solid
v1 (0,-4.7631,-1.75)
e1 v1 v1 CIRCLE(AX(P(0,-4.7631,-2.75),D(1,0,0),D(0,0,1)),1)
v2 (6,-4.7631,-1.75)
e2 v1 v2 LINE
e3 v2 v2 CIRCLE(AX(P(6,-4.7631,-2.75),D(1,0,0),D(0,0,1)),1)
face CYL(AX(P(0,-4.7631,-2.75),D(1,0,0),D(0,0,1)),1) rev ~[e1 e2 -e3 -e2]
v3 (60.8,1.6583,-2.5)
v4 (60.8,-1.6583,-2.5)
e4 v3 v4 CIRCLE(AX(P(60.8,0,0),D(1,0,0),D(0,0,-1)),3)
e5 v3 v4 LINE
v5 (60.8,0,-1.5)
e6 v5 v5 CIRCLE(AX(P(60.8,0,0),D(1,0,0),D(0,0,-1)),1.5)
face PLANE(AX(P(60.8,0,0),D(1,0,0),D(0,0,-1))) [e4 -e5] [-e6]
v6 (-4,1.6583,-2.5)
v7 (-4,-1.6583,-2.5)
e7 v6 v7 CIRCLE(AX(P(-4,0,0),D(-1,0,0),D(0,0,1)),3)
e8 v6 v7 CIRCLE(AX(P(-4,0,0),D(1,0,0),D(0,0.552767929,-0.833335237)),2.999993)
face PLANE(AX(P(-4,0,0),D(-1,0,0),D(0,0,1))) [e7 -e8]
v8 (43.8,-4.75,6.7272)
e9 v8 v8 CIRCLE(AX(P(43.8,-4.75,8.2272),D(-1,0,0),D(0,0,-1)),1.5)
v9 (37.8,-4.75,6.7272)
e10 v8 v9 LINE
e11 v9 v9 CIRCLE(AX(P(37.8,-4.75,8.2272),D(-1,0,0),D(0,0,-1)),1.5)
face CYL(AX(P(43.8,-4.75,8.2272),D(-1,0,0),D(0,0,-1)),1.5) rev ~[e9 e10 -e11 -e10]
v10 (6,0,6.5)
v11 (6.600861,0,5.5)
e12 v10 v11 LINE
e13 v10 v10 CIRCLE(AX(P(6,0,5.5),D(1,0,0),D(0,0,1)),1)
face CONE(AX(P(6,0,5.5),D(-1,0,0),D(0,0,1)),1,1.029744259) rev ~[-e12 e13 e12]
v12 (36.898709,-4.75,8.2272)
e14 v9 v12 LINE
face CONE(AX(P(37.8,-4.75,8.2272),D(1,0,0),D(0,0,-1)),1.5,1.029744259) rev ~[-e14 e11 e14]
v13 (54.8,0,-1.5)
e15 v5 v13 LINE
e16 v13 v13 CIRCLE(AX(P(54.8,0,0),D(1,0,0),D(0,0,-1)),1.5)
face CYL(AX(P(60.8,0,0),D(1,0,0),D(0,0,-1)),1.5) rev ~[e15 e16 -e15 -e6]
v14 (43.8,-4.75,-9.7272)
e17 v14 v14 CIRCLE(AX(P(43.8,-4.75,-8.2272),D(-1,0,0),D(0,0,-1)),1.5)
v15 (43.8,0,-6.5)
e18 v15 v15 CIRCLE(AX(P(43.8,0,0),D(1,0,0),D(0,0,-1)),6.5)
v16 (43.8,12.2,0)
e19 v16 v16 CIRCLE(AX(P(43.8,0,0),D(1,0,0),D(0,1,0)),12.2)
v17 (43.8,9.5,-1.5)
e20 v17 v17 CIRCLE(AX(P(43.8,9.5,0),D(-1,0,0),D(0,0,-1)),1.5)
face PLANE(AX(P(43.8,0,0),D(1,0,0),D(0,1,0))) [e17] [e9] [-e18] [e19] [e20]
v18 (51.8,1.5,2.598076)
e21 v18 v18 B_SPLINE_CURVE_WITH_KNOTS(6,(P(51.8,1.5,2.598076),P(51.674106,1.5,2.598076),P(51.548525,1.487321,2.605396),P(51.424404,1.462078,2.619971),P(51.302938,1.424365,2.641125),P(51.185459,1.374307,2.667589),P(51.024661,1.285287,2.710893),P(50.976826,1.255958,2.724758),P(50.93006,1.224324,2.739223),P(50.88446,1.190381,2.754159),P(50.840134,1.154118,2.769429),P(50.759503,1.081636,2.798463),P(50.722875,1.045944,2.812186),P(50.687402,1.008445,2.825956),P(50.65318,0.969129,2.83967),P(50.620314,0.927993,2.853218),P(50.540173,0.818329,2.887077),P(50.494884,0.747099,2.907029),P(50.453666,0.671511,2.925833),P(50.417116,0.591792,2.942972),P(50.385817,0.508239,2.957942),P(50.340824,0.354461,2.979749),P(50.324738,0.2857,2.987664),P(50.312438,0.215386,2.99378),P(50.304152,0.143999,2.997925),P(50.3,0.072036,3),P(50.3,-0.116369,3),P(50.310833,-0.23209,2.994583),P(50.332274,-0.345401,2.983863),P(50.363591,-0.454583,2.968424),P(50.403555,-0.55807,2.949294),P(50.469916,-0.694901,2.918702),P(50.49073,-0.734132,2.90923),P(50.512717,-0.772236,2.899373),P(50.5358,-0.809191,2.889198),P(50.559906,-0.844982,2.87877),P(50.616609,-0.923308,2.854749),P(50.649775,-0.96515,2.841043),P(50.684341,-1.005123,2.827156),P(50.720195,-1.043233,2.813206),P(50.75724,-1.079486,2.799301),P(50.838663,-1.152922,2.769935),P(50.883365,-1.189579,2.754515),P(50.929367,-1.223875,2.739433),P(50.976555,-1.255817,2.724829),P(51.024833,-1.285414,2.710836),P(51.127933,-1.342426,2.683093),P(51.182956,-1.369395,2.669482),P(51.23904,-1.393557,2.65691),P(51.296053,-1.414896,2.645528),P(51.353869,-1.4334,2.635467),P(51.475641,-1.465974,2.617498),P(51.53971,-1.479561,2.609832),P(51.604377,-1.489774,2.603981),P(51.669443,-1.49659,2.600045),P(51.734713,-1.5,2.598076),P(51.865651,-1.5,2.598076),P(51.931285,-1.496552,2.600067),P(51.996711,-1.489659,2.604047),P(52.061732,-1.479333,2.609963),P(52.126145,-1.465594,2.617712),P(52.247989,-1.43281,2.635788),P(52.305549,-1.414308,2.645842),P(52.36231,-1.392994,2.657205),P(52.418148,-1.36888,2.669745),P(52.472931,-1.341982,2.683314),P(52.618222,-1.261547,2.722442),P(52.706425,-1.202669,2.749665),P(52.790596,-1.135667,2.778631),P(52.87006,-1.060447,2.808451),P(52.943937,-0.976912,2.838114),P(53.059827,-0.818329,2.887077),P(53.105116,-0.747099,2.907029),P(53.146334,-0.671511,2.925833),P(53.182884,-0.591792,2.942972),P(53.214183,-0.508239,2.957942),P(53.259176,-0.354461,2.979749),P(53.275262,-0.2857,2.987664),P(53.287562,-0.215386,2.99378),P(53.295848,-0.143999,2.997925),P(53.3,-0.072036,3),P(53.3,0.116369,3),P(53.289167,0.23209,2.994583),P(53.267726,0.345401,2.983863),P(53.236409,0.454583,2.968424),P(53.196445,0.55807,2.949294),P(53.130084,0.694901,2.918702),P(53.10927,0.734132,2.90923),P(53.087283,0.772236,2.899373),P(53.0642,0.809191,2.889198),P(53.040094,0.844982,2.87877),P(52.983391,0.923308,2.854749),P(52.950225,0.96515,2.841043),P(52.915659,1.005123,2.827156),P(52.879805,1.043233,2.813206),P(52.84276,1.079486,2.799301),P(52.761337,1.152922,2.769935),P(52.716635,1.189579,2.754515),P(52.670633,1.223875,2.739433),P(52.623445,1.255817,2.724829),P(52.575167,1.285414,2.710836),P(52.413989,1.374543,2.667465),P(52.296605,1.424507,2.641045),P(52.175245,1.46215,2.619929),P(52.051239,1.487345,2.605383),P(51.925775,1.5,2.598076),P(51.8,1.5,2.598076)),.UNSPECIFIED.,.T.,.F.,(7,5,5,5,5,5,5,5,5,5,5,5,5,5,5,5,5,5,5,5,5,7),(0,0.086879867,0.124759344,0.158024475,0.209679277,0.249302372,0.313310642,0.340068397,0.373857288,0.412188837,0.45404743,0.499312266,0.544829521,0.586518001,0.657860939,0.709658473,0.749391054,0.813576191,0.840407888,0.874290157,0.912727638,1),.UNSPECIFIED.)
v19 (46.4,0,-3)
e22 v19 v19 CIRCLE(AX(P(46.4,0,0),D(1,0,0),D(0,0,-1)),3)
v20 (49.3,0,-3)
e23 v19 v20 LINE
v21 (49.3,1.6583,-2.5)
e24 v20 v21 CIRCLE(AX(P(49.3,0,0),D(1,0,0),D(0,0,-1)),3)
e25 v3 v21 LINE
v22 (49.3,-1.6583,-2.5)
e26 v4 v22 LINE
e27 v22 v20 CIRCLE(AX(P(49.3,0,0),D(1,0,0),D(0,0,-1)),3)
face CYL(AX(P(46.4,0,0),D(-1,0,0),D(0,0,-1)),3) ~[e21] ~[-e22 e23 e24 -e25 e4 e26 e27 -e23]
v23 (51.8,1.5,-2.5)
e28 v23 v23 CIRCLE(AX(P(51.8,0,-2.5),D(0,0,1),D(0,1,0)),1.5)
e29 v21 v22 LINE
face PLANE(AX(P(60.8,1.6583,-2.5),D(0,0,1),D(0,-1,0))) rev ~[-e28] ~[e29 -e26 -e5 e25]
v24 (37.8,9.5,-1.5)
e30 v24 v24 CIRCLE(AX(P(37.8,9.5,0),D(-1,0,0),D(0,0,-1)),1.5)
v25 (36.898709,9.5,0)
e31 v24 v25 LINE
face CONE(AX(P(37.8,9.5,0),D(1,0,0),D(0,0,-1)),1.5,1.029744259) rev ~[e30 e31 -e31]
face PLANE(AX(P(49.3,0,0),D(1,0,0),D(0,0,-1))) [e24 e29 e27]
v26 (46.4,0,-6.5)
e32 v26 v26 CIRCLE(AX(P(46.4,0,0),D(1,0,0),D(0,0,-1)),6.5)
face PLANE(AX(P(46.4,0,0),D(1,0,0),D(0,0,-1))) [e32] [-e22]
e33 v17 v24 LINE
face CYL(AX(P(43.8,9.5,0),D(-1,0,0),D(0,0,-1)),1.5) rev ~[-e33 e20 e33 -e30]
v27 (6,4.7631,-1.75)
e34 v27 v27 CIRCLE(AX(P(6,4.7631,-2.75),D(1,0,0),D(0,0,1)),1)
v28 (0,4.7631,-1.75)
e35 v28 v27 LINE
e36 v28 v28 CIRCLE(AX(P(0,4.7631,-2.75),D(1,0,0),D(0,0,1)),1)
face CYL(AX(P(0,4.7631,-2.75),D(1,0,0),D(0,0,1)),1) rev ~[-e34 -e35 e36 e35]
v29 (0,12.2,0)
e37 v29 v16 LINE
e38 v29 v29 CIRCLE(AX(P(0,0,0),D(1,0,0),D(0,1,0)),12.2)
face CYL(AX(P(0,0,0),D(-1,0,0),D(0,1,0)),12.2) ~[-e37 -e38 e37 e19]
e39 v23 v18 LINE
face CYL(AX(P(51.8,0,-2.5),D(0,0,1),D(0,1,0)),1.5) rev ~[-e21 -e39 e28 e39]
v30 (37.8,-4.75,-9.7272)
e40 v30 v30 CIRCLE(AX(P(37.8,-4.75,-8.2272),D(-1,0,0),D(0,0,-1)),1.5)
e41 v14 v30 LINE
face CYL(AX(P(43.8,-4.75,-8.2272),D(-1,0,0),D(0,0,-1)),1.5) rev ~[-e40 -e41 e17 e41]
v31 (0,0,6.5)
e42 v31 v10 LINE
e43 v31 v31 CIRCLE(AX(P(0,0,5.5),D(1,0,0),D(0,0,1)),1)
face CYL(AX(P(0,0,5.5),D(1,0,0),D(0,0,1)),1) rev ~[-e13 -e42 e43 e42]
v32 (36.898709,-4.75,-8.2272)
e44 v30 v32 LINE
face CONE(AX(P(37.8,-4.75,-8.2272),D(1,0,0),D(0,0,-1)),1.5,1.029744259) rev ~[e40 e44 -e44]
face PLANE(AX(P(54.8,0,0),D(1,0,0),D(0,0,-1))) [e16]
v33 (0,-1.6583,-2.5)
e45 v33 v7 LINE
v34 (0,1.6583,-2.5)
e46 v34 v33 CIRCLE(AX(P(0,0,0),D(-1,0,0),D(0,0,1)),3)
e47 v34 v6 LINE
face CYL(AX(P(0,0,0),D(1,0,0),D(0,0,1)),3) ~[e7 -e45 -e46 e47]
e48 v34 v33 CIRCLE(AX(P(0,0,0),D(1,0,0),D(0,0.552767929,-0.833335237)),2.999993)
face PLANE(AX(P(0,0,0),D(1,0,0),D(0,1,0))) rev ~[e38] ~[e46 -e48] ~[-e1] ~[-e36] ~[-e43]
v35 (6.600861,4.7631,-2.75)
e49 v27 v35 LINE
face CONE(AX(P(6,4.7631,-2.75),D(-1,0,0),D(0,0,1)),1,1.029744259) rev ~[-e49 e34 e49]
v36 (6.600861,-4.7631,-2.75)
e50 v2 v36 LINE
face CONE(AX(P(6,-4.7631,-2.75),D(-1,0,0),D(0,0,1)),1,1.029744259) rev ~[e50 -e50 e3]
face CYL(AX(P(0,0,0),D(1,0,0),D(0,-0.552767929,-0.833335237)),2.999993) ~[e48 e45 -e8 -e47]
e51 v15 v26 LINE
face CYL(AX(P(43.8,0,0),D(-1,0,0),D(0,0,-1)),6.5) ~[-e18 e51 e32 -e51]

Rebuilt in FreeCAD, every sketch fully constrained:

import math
import FreeCAD as App
import Part
import Sketcher

V = App.Vector
Q = App.Units.Quantity

doc = App.newDocument("Part")
body = doc.addObject("PartDesign::Body", "Body")

# Sketch on YZ plane
sketch1 = body.newObject("Sketcher::SketchObject", "Sketch")
sketch1.AttachmentSupport = (doc.getObject("YZ_Plane"), [""])
sketch1.MapMode = "FlatFace"
sketch1.addGeometry(Part.Circle(V(0, 0, 0), V(0, 0, 1), 12), False)
sketch1.addConstraint([
    Sketcher.Constraint("Coincident", 0, 3, -1, 1),
    Sketcher.Constraint("Diameter", 0, Q("24.4 mm")),
])
pad1 = body.newObject("PartDesign::Pad", "Pad")
pad1.Profile = sketch1
pad1.Length = 43.8

# Sketch on YZ plane
sketch2 = body.newObject("Sketcher::SketchObject", "Sketch001")
sketch2.AttachmentSupport = (doc.getObject("YZ_Plane"), [""])
sketch2.MapMode = "FlatFace"
sketch2.AttachmentOffset = App.Placement(V(0, 0, 43.8), App.Rotation())
sketch2.addGeometry(Part.Circle(V(0, 0, 0), V(0, 0, 1), 6), False)
sketch2.addConstraint([
    Sketcher.Constraint("Coincident", 0, 3, -1, 1),
    Sketcher.Constraint("Diameter", 0, Q("13 mm")),
])
pad2 = body.newObject("PartDesign::Pad", "Pad001")
pad2.Profile = sketch2
pad2.Length = 2.6

# Sketch on YZ plane
sketch3 = body.newObject("Sketcher::SketchObject", "Sketch002")
sketch3.AttachmentSupport = (doc.getObject("YZ_Plane"), [""])
sketch3.MapMode = "FlatFace"
sketch3.AttachmentOffset = App.Placement(V(0, 0, 46.4), App.Rotation())
sketch3.addGeometry(Part.Circle(V(0, 0, 0), V(0, 0, 1), 3), False)
sketch3.addConstraint([
    Sketcher.Constraint("Coincident", 0, 3, -1, 1),
    Sketcher.Constraint("Diameter", 0, Q("6 mm")),
])
pad3 = body.newObject("PartDesign::Pad", "Pad002")
pad3.Profile = sketch3
pad3.Length = 14.4

# Sketch on YZ plane
sketch4 = body.newObject("Sketcher::SketchObject", "Sketch003")
sketch4.AttachmentSupport = (doc.getObject("YZ_Plane"), [""])
sketch4.MapMode = "FlatFace"
sketch4.AttachmentOffset = App.Placement(V(0, 0, 60.8), App.Rotation())
sketch4.addGeometry([
    Part.ArcOfCircle(Part.Circle(V(0, 0, 0), V(0, 0, 1), 3), math.radians(-124), math.radians(-56)),
    Part.LineSegment(V(-1.7, -2.5, 0), V(1.7, -2.5, 0)),
], False)
sketch4.addConstraint([
    Sketcher.Constraint("Coincident", 0, 1, 1, 1),
    Sketcher.Constraint("Coincident", 1, 2, 0, 2),
    Sketcher.Constraint("Horizontal", 1),
    Sketcher.Constraint("Coincident", 0, 3, -1, 1),
    Sketcher.Constraint("Radius", 0, Q("3 mm")),
    Sketcher.Constraint("DistanceY", 0, 1, -1, 1, Q("2.5 mm")),
])
pocket1 = body.newObject("PartDesign::Pocket", "Pocket")
pocket1.Profile = sketch4
pocket1.Length = 11.5

# Sketch on XY plane
sketch5 = body.newObject("Sketcher::SketchObject", "Sketch004")
sketch5.AttachmentSupport = (doc.getObject("XY_Plane"), [""])
sketch5.MapMode = "FlatFace"
sketch5.AttachmentOffset = App.Placement(V(0, 0, -2.5), App.Rotation())
sketch5.addGeometry(Part.Circle(V(51.8, 0, 0), V(0, 0, 1), 1.5), False)
sketch5.addConstraint([
    Sketcher.Constraint("PointOnObject", 0, 3, -1),
    Sketcher.Constraint("Diameter", 0, Q("3 mm")),
    Sketcher.Constraint("DistanceX", -1, 1, 0, 3, Q("51.8 mm")),
])
doc.recompute()
hole = body.newObject("PartDesign::Hole", "Hole")
hole.Profile = sketch5
hole.ThreadType = "None"
hole.Diameter = 3
hole.DepthType = "ThroughAll"
hole.Reversed = True

# Sketch on YZ plane
sketch6 = body.newObject("Sketcher::SketchObject", "Sketch005")
sketch6.AttachmentSupport = (doc.getObject("YZ_Plane"), [""])
sketch6.MapMode = "FlatFace"
sketch6.addGeometry(Part.Circle(V(0, 0, 0), V(0, 0, 1), 3), False)
sketch6.addConstraint([
    Sketcher.Constraint("Coincident", 0, 3, -1, 1),
    Sketcher.Constraint("Diameter", 0, Q("6 mm")),
])
pad4 = body.newObject("PartDesign::Pad", "Pad003")
pad4.Profile = sketch6
pad4.Length = 4
pad4.Reversed = True

# Sketch on YZ plane
sketch7 = body.newObject("Sketcher::SketchObject", "Sketch006")
sketch7.AttachmentSupport = (doc.getObject("YZ_Plane"), [""])
sketch7.MapMode = "FlatFace"
sketch7.AttachmentOffset = App.Placement(V(0, 0, 60.8), App.Rotation())
sketch7.addGeometry(Part.Circle(V(0, 0, 0), V(0, 0, 1), 1.5), False)
sketch7.addConstraint([
    Sketcher.Constraint("Coincident", 0, 3, -1, 1),
    Sketcher.Constraint("Diameter", 0, Q("3 mm")),
])
pocket2 = body.newObject("PartDesign::Pocket", "Pocket001")
pocket2.Profile = sketch7
pocket2.Length = 6

# Sketch on YZ plane
sketch8 = body.newObject("Sketcher::SketchObject", "Sketch007")
sketch8.AttachmentSupport = (doc.getObject("YZ_Plane"), [""])
sketch8.MapMode = "FlatFace"
sketch8.AttachmentOffset = App.Placement(V(0, 0, 43.8), App.Rotation())
sketch8.addGeometry([
    Part.Circle(V(9.5, 0, 0), V(0, 0, 1), 1.5),
    Part.Circle(V(-4.8, 8.2, 0), V(0, 0, 1), 1.5),
    Part.Circle(V(-4.8, -8.2, 0), V(0, 0, 1), 1.5),
], False)
sketch8.addConstraint([
    Sketcher.Constraint("Equal", 0, 1),
    Sketcher.Constraint("Equal", 1, 2),
    Sketcher.Constraint("Symmetric", 1, 3, 2, 3, -1),
    Sketcher.Constraint("PointOnObject", 0, 3, -1),
    Sketcher.Constraint("Diameter", 0, Q("3 mm")),
    Sketcher.Constraint("DistanceX", -1, 1, 0, 3, Q("9.5 mm")),
    Sketcher.Constraint("DistanceX", 1, 3, -1, 1, Q("4.75 mm")),
    Sketcher.Constraint("DistanceY", -1, 1, 1, 3, Q("8.2272 mm")),
])
doc.recompute()
hole2 = body.newObject("PartDesign::Hole", "Hole001")
hole2.Profile = sketch8
hole2.ThreadType = "None"
hole2.Diameter = 3
hole2.DepthType = "Dimension"
hole2.Depth = 6
hole2.DrillPoint = "Angled"
hole2.DrillPointAngle = 118

# Sketch on YZ plane
sketch9 = body.newObject("Sketcher::SketchObject", "Sketch008")
sketch9.AttachmentSupport = (doc.getObject("YZ_Plane"), [""])
sketch9.MapMode = "FlatFace"
sketch9.addGeometry([
    Part.Circle(V(0, 5.5, 0), V(0, 0, 1), 1),
    Part.Circle(V(4.8, -2.8, 0), V(0, 0, 1), 1),
    Part.Circle(V(-4.8, -2.8, 0), V(0, 0, 1), 1),
], False)
sketch9.addConstraint([
    Sketcher.Constraint("Equal", 0, 1),
    Sketcher.Constraint("Equal", 1, 2),
    Sketcher.Constraint("Symmetric", 1, 3, 2, 3, -2),
    Sketcher.Constraint("PointOnObject", 0, 3, -2),
    Sketcher.Constraint("Diameter", 0, Q("2 mm")),
    Sketcher.Constraint("DistanceY", -1, 1, 0, 3, Q("5.5 mm")),
    Sketcher.Constraint("DistanceY", 1, 3, -1, 1, Q("2.75 mm")),
    Sketcher.Constraint("DistanceX", -1, 1, 1, 3, Q("4.763 mm")),
])
doc.recompute()
hole3 = body.newObject("PartDesign::Hole", "Hole002")
hole3.Profile = sketch9
hole3.ThreadType = "None"
hole3.Diameter = 2
hole3.DepthType = "Dimension"
hole3.Depth = 6
hole3.DrillPoint = "Angled"
hole3.DrillPointAngle = 118
hole3.Reversed = True

doc.recompute()
